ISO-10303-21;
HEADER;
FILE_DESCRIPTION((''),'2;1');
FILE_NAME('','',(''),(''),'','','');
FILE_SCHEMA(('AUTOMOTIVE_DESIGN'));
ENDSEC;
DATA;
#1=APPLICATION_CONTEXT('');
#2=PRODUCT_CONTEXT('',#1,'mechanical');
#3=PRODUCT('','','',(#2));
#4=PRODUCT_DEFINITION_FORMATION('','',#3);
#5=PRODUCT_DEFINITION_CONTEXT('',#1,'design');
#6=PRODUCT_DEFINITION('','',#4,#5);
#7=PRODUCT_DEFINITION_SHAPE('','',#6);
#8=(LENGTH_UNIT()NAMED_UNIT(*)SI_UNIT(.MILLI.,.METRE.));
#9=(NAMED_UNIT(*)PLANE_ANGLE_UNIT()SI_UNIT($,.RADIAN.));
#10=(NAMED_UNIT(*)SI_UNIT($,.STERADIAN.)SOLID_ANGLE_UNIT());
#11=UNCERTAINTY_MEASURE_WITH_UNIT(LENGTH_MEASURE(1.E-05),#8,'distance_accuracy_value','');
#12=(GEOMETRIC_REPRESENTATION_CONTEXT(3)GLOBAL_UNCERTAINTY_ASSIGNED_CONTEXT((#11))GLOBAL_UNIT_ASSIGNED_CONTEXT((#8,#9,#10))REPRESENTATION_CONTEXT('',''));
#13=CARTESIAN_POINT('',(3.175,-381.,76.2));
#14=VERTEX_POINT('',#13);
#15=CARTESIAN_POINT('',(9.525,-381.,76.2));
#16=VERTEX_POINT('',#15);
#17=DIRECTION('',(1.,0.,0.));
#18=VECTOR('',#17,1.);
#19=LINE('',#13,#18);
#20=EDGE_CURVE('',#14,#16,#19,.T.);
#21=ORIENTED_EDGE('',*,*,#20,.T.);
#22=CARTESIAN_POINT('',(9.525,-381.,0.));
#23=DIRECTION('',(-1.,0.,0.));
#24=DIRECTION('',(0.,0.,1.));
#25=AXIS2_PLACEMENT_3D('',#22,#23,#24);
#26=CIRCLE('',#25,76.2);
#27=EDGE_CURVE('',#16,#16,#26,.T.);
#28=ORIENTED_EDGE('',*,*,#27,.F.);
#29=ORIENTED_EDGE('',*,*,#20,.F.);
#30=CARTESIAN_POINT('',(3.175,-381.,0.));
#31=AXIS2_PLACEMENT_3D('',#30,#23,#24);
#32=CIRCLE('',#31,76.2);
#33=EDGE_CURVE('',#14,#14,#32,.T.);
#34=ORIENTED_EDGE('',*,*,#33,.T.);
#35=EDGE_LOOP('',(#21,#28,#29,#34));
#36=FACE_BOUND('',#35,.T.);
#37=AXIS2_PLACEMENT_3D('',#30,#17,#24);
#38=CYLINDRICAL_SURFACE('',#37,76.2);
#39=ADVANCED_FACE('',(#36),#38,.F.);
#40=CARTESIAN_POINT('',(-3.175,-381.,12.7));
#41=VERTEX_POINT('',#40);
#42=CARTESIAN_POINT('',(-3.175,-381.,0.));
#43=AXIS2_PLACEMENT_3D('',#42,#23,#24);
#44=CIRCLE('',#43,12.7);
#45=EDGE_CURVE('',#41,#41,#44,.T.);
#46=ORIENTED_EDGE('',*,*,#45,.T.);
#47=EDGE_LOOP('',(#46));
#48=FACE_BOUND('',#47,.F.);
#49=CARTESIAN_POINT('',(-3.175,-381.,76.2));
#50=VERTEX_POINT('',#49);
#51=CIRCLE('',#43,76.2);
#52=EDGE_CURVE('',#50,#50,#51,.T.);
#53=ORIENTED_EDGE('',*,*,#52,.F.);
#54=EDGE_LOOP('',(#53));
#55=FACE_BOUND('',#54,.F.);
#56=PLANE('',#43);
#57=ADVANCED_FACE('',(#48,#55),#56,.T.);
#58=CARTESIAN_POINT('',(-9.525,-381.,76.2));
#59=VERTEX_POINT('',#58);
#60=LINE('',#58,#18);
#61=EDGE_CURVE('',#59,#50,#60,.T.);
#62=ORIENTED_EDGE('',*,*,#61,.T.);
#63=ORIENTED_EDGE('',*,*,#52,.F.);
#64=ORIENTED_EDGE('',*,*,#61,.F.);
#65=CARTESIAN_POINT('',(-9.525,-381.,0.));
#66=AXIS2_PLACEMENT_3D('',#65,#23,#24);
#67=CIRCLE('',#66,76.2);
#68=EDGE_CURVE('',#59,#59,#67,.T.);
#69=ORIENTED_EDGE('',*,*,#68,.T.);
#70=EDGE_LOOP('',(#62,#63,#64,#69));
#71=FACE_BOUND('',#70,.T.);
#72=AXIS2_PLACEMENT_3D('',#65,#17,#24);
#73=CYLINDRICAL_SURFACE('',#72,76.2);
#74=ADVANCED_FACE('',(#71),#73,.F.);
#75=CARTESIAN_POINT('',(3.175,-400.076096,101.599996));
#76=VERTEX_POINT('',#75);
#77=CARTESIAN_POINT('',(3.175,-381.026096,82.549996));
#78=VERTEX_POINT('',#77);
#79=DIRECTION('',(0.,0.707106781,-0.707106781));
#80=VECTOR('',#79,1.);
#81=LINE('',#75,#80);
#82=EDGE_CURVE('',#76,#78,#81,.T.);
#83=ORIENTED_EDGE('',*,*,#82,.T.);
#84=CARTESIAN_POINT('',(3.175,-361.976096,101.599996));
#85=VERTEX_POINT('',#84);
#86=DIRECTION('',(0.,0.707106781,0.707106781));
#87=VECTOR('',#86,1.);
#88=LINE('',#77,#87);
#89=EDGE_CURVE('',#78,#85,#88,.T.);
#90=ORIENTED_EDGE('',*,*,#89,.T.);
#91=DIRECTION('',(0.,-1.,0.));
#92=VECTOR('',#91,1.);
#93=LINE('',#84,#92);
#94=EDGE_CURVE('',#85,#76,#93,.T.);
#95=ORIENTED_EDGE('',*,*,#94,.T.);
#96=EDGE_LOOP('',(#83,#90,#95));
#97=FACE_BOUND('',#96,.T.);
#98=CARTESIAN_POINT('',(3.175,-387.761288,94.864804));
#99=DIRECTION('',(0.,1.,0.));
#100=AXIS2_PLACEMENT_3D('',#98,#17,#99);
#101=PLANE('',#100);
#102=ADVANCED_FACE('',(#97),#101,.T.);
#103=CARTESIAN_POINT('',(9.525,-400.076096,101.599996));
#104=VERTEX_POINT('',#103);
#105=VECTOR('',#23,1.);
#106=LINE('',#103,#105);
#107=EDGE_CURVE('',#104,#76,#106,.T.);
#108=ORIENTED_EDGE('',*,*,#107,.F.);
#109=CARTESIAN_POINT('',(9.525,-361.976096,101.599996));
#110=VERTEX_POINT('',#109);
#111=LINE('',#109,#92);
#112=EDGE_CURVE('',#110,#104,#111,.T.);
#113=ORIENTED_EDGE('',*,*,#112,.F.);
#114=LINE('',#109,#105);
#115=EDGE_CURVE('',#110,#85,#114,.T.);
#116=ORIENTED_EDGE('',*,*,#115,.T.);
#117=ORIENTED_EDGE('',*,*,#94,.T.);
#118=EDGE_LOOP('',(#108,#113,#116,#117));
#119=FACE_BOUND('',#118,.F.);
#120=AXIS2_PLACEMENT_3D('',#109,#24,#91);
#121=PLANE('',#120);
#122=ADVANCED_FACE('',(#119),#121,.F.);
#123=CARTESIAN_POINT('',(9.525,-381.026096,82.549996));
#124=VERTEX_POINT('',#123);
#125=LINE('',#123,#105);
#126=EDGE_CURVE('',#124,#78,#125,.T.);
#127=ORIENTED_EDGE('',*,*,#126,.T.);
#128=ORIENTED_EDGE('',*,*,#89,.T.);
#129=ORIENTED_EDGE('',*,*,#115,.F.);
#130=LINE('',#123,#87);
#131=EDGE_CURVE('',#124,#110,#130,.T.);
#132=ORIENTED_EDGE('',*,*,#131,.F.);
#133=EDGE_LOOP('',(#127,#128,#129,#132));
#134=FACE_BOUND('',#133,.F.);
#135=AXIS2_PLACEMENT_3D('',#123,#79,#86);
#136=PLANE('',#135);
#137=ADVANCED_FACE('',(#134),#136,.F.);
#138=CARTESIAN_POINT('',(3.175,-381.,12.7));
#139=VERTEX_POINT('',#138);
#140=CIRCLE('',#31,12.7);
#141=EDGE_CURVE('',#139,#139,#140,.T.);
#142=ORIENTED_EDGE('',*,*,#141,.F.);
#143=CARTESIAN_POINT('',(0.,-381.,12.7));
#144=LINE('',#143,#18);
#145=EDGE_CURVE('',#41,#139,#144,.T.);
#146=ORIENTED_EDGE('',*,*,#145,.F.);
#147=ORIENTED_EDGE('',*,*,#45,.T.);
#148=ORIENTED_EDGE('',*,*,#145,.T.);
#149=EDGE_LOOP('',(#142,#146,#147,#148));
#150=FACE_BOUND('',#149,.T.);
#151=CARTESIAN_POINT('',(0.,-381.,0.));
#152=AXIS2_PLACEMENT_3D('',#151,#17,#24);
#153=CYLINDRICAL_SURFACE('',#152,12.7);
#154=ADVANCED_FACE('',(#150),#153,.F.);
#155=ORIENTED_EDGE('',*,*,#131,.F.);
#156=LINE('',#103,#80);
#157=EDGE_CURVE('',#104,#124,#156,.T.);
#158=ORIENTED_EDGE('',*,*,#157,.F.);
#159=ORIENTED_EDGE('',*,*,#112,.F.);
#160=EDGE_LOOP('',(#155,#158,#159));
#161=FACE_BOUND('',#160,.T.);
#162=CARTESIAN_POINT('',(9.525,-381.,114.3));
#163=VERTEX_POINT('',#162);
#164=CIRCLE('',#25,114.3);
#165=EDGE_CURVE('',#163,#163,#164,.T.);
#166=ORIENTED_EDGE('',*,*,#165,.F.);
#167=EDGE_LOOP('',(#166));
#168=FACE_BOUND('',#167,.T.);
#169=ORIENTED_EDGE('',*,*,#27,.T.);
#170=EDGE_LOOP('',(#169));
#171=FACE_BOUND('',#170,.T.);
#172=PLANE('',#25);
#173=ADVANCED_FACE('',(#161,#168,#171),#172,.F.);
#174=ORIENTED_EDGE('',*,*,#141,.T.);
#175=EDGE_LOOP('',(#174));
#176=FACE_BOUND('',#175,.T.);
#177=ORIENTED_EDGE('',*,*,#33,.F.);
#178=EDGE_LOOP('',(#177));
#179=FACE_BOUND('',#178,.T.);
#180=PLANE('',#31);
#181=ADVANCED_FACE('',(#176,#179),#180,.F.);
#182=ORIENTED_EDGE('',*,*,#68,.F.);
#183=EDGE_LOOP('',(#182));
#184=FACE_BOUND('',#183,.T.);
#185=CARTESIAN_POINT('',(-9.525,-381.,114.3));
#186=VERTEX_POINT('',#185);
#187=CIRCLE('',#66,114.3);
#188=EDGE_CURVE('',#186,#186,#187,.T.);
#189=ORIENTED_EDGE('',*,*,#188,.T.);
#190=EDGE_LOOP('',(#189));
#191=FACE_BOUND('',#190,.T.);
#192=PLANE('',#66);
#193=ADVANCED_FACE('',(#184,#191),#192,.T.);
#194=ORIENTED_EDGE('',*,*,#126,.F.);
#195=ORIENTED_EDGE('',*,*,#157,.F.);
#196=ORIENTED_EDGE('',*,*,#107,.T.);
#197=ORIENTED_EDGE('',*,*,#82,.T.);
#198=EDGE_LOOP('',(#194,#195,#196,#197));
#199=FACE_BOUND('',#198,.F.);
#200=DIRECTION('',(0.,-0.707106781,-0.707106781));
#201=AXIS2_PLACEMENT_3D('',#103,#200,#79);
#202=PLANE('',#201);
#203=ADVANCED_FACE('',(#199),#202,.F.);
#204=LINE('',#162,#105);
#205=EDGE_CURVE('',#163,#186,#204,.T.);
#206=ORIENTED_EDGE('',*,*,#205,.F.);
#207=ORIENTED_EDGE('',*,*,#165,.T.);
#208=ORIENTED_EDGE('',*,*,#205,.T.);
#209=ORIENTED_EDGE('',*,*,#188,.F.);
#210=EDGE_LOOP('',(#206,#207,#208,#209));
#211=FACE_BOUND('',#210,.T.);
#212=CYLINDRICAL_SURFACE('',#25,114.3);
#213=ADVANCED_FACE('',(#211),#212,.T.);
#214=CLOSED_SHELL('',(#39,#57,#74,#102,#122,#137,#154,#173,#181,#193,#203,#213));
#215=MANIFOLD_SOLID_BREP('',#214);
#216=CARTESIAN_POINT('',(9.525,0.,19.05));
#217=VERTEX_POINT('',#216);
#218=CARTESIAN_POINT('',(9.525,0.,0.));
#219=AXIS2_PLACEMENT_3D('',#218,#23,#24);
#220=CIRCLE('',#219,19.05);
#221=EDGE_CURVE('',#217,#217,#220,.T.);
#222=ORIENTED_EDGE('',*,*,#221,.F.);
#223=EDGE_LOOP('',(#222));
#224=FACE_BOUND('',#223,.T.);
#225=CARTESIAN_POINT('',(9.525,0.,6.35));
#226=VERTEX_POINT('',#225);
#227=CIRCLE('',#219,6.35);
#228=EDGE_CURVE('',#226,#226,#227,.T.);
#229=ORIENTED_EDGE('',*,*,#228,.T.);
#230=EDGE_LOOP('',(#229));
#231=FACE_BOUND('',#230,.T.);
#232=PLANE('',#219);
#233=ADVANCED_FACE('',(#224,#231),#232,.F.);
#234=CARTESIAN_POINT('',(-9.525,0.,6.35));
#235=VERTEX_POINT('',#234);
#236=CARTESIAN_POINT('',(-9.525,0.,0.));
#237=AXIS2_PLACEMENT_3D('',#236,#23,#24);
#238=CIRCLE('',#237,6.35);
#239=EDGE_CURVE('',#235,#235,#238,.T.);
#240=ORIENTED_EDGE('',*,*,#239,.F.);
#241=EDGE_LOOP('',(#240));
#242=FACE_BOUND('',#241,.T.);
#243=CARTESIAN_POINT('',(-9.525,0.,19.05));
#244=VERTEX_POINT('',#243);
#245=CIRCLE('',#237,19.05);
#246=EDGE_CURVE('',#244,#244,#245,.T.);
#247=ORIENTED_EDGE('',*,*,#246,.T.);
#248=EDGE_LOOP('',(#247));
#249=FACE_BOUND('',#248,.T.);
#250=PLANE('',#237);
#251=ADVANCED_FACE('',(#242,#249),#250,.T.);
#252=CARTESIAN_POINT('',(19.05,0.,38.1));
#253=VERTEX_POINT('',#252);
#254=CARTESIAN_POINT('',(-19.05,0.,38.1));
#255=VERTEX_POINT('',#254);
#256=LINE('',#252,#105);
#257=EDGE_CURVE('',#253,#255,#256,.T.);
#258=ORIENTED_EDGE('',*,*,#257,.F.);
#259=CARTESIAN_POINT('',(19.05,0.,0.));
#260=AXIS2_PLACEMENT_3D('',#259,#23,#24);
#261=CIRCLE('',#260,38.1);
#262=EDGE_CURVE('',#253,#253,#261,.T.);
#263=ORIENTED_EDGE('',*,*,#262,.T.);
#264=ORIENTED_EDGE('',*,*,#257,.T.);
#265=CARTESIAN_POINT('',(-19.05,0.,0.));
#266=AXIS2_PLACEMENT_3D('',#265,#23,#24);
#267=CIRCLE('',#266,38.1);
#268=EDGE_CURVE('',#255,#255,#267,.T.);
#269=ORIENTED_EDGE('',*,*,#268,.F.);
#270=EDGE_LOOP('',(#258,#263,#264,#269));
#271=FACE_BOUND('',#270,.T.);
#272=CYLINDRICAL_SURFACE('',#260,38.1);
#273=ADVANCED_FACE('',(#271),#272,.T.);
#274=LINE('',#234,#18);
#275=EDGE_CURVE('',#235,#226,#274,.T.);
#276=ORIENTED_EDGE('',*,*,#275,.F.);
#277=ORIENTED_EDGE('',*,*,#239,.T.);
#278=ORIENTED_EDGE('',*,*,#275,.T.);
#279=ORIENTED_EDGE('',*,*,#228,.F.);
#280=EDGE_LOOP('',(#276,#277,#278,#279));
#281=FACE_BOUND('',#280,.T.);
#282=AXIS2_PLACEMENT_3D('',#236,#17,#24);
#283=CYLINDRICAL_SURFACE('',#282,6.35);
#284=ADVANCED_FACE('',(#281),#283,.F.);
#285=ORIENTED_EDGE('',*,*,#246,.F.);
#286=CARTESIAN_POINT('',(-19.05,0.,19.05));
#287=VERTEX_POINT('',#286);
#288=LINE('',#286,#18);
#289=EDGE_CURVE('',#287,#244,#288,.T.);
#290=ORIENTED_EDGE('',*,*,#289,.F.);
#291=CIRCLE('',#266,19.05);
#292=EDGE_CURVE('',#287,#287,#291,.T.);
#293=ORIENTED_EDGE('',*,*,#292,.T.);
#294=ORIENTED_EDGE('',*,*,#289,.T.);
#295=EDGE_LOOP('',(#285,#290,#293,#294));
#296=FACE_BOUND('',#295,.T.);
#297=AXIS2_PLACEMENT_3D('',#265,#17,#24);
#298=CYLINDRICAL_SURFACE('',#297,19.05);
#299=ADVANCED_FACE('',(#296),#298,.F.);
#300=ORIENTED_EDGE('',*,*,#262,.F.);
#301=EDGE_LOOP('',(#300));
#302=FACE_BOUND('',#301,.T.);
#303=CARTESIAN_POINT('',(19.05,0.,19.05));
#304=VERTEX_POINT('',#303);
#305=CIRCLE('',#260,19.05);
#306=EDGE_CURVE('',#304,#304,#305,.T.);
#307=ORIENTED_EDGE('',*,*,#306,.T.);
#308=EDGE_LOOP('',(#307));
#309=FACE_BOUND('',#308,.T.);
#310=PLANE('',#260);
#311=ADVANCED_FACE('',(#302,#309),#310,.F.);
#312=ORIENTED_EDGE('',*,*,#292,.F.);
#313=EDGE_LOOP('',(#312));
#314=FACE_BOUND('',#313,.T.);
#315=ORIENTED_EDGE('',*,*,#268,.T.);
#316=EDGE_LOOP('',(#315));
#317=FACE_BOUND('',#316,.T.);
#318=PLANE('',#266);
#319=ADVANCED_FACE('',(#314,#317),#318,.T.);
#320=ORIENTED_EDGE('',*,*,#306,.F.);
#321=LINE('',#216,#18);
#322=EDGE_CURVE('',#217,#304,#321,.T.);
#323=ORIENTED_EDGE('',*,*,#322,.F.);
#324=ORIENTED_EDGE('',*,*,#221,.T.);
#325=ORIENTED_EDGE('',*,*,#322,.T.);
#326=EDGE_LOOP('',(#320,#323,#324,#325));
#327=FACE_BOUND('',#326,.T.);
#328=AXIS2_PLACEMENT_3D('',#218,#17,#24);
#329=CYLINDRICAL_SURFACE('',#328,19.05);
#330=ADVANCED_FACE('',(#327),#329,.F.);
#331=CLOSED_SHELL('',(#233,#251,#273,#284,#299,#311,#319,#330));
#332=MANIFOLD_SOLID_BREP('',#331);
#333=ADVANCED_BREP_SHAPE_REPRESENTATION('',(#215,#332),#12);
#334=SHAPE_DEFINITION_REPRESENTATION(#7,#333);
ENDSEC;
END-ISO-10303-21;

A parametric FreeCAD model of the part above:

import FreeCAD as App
import Part
import Sketcher
Q = App.Units.Quantity

doc = App.newDocument("Part")
body = doc.addObject("PartDesign::Body", "Body")

# Sketch on XZ plane
sketch1 = body.newObject("Sketcher::SketchObject", "Sketch")
sketch1.AttachmentSupport = (doc.getObject("XZ_Plane"), [""])
sketch1.MapMode = "FlatFace"
sketch1.addGeometry([
    Part.LineSegment(App.Vector(-19.05, 19.05, 0), App.Vector(-9.525, 19.05, 0)),  # 0
    Part.LineSegment(App.Vector(-9.525, 19.05, 0), App.Vector(-9.525, 6.35, 0)),  # 1
    Part.LineSegment(App.Vector(-9.525, 6.35, 0), App.Vector(9.525, 6.35, 0)),  # 2
    Part.LineSegment(App.Vector(9.525, 6.35, 0), App.Vector(9.525, 19.05, 0)),  # 3
    Part.LineSegment(App.Vector(9.525, 19.05, 0), App.Vector(19.05, 19.05, 0)),  # 4
    Part.LineSegment(App.Vector(19.05, 19.05, 0), App.Vector(19.05, 38.1, 0)),  # 5
    Part.LineSegment(App.Vector(19.05, 38.1, 0), App.Vector(-19.05, 38.1, 0)),  # 6
    Part.LineSegment(App.Vector(-19.05, 38.1, 0), App.Vector(-19.05, 19.05, 0)),  # 7
], False)
sketch1.addConstraint([
    Sketcher.Constraint("Coincident", 0, 2, 1, 1),
    Sketcher.Constraint("Coincident", 1, 2, 2, 1),
    Sketcher.Constraint("Coincident", 2, 2, 3, 1),
    Sketcher.Constraint("Coincident", 3, 2, 4, 1),
    Sketcher.Constraint("Coincident", 4, 2, 5, 1),
    Sketcher.Constraint("Coincident", 5, 2, 6, 1),
    Sketcher.Constraint("Coincident", 6, 2, 7, 1),
    Sketcher.Constraint("Coincident", 7, 2, 0, 1),
    Sketcher.Constraint("Horizontal", 0),
    Sketcher.Constraint("Vertical", 1),
    Sketcher.Constraint("Horizontal", 2),
    Sketcher.Constraint("Vertical", 3),
    Sketcher.Constraint("Horizontal", 4),
    Sketcher.Constraint("Vertical", 5),
    Sketcher.Constraint("Horizontal", 6),
    Sketcher.Constraint("Vertical", 7),
    Sketcher.Constraint("Symmetric", 0, 2, 3, 2, -2),
    Sketcher.Constraint("Equal", 0, 4),
    Sketcher.Constraint("Equal", 2, 5),
    Sketcher.Constraint("DistanceX", 6, 2, 6, 1, Q("1.5 in")),
    Sketcher.Constraint("DistanceY", 1, 2, 1, 1, Q("0.5 in")),
    Sketcher.Constraint("DistanceX", 2, 1, 2, 2, Q("0.75 in")),
    Sketcher.Constraint("DistanceY", -1, 1, 5, 2, Q("1.5 in")),
])
revolution = body.newObject("PartDesign::Revolution", "Revolution")
revolution.Profile = sketch1
revolution.ReferenceAxis = (sketch1, ["H_Axis"])
revolution.Angle = 360
body2 = doc.addObject("PartDesign::Body", "Body001")

# Sketch on XZ plane
sketch2 = body2.newObject("Sketcher::SketchObject", "Sketch001")
sketch2.AttachmentSupport = (doc.getObject("XZ_Plane001"), [""])
sketch2.MapMode = "FlatFace"
sketch2.AttachmentOffset = App.Placement(App.Vector(0, 0, 15 * 25.4), App.Rotation())
sketch2.addGeometry([
    Part.LineSegment(App.Vector(-3.175, 76.2, 0), App.Vector(-3.175, 12.7, 0)),  # 0
    Part.LineSegment(App.Vector(-3.175, 12.7, 0), App.Vector(3.175, 12.7, 0)),  # 1
    Part.LineSegment(App.Vector(3.175, 12.7, 0), App.Vector(3.175, 76.2, 0)),  # 2
    Part.LineSegment(App.Vector(3.175, 76.2, 0), App.Vector(9.525, 76.2, 0)),  # 3
    Part.LineSegment(App.Vector(9.525, 76.2, 0), App.Vector(9.525, 114.3, 0)),  # 4
    Part.LineSegment(App.Vector(9.525, 114.3, 0), App.Vector(-9.525, 114.3, 0)),  # 5
    Part.LineSegment(App.Vector(-9.525, 114.3, 0), App.Vector(-9.525, 76.2, 0)),  # 6
    Part.LineSegment(App.Vector(-9.525, 76.2, 0), App.Vector(-3.175, 76.2, 0)),  # 7
], False)
sketch2.addConstraint([
    Sketcher.Constraint("Coincident", 0, 2, 1, 1),
    Sketcher.Constraint("Coincident", 1, 2, 2, 1),
    Sketcher.Constraint("Coincident", 2, 2, 3, 1),
    Sketcher.Constraint("Coincident", 3, 2, 4, 1),
    Sketcher.Constraint("Coincident", 4, 2, 5, 1),
    Sketcher.Constraint("Coincident", 5, 2, 6, 1),
    Sketcher.Constraint("Coincident", 6, 2, 7, 1),
    Sketcher.Constraint("Coincident", 7, 2, 0, 1),
    Sketcher.Constraint("Vertical", 0),
    Sketcher.Constraint("Horizontal", 1),
    Sketcher.Constraint("Vertical", 2),
    Sketcher.Constraint("Horizontal", 3),
    Sketcher.Constraint("Vertical", 4),
    Sketcher.Constraint("Horizontal", 5),
    Sketcher.Constraint("Vertical", 6),
    Sketcher.Constraint("Horizontal", 7),
    Sketcher.Constraint("Symmetric", 3, 2, 6, 2, -2),
    Sketcher.Constraint("Equal", 1, 3),
    Sketcher.Constraint("Equal", 3, 7),
    Sketcher.Constraint("DistanceY", 0, 2, 0, 1, Q("2.5 in")),
    Sketcher.Constraint("DistanceY", 4, 1, 4, 2, Q("1.5 in")),
    Sketcher.Constraint("DistanceY", -1, 1, 2, 2, Q("3 in")),
    Sketcher.Constraint("DistanceX", 1, 1, 1, 2, Q("0.25 in")),
])
revolution2 = body2.newObject("PartDesign::Revolution", "Revolution001")
revolution2.Profile = sketch2
revolution2.ReferenceAxis = (sketch2, ["H_Axis"])
revolution2.Angle = 360

# Sketch on YZ plane
sketch3 = body2.newObject("Sketcher::SketchObject", "Sketch002")
sketch3.AttachmentSupport = (doc.getObject("YZ_Plane001"), [""])
sketch3.MapMode = "FlatFace"
sketch3.AttachmentOffset = App.Placement(App.Vector(0, 0, 0.375 * 25.4), App.Rotation())
sketch3.addGeometry([
    Part.LineSegment(App.Vector(-400.076096, 101.599996, 0), App.Vector(-381.026096, 82.549996, 0)),
    Part.LineSegment(App.Vector(-381.026096, 82.549996, 0), App.Vector(-361.976096, 101.599996, 0)),
    Part.LineSegment(App.Vector(-361.976096, 101.599996, 0), App.Vector(-400.076096, 101.599996, 0)),
], False)
sketch3.addConstraint([
    Sketcher.Constraint("Coincident", 0, 2, 1, 1),
    Sketcher.Constraint("Coincident", 1, 2, 2, 1),
    Sketcher.Constraint("Coincident", 2, 2, 0, 1),
    Sketcher.Constraint("Horizontal", 2),
    Sketcher.Constraint("Perpendicular", 0, 1),
    Sketcher.Constraint("Equal", 0, 1),
    Sketcher.Constraint("DistanceX", 2, 2, 2, 1, Q("1.5 in")),
    Sketcher.Constraint("DistanceY", -1, 1, 1, 2, Q("3.9999998 in")),
    Sketcher.Constraint("DistanceX", 0, 2, -1, 1, 381.026096),
])
pocket1 = body2.newObject("PartDesign::Pocket", "Pocket")
pocket1.Profile = sketch3
pocket1.Length = Q("0.25 in")

doc.recompute()
